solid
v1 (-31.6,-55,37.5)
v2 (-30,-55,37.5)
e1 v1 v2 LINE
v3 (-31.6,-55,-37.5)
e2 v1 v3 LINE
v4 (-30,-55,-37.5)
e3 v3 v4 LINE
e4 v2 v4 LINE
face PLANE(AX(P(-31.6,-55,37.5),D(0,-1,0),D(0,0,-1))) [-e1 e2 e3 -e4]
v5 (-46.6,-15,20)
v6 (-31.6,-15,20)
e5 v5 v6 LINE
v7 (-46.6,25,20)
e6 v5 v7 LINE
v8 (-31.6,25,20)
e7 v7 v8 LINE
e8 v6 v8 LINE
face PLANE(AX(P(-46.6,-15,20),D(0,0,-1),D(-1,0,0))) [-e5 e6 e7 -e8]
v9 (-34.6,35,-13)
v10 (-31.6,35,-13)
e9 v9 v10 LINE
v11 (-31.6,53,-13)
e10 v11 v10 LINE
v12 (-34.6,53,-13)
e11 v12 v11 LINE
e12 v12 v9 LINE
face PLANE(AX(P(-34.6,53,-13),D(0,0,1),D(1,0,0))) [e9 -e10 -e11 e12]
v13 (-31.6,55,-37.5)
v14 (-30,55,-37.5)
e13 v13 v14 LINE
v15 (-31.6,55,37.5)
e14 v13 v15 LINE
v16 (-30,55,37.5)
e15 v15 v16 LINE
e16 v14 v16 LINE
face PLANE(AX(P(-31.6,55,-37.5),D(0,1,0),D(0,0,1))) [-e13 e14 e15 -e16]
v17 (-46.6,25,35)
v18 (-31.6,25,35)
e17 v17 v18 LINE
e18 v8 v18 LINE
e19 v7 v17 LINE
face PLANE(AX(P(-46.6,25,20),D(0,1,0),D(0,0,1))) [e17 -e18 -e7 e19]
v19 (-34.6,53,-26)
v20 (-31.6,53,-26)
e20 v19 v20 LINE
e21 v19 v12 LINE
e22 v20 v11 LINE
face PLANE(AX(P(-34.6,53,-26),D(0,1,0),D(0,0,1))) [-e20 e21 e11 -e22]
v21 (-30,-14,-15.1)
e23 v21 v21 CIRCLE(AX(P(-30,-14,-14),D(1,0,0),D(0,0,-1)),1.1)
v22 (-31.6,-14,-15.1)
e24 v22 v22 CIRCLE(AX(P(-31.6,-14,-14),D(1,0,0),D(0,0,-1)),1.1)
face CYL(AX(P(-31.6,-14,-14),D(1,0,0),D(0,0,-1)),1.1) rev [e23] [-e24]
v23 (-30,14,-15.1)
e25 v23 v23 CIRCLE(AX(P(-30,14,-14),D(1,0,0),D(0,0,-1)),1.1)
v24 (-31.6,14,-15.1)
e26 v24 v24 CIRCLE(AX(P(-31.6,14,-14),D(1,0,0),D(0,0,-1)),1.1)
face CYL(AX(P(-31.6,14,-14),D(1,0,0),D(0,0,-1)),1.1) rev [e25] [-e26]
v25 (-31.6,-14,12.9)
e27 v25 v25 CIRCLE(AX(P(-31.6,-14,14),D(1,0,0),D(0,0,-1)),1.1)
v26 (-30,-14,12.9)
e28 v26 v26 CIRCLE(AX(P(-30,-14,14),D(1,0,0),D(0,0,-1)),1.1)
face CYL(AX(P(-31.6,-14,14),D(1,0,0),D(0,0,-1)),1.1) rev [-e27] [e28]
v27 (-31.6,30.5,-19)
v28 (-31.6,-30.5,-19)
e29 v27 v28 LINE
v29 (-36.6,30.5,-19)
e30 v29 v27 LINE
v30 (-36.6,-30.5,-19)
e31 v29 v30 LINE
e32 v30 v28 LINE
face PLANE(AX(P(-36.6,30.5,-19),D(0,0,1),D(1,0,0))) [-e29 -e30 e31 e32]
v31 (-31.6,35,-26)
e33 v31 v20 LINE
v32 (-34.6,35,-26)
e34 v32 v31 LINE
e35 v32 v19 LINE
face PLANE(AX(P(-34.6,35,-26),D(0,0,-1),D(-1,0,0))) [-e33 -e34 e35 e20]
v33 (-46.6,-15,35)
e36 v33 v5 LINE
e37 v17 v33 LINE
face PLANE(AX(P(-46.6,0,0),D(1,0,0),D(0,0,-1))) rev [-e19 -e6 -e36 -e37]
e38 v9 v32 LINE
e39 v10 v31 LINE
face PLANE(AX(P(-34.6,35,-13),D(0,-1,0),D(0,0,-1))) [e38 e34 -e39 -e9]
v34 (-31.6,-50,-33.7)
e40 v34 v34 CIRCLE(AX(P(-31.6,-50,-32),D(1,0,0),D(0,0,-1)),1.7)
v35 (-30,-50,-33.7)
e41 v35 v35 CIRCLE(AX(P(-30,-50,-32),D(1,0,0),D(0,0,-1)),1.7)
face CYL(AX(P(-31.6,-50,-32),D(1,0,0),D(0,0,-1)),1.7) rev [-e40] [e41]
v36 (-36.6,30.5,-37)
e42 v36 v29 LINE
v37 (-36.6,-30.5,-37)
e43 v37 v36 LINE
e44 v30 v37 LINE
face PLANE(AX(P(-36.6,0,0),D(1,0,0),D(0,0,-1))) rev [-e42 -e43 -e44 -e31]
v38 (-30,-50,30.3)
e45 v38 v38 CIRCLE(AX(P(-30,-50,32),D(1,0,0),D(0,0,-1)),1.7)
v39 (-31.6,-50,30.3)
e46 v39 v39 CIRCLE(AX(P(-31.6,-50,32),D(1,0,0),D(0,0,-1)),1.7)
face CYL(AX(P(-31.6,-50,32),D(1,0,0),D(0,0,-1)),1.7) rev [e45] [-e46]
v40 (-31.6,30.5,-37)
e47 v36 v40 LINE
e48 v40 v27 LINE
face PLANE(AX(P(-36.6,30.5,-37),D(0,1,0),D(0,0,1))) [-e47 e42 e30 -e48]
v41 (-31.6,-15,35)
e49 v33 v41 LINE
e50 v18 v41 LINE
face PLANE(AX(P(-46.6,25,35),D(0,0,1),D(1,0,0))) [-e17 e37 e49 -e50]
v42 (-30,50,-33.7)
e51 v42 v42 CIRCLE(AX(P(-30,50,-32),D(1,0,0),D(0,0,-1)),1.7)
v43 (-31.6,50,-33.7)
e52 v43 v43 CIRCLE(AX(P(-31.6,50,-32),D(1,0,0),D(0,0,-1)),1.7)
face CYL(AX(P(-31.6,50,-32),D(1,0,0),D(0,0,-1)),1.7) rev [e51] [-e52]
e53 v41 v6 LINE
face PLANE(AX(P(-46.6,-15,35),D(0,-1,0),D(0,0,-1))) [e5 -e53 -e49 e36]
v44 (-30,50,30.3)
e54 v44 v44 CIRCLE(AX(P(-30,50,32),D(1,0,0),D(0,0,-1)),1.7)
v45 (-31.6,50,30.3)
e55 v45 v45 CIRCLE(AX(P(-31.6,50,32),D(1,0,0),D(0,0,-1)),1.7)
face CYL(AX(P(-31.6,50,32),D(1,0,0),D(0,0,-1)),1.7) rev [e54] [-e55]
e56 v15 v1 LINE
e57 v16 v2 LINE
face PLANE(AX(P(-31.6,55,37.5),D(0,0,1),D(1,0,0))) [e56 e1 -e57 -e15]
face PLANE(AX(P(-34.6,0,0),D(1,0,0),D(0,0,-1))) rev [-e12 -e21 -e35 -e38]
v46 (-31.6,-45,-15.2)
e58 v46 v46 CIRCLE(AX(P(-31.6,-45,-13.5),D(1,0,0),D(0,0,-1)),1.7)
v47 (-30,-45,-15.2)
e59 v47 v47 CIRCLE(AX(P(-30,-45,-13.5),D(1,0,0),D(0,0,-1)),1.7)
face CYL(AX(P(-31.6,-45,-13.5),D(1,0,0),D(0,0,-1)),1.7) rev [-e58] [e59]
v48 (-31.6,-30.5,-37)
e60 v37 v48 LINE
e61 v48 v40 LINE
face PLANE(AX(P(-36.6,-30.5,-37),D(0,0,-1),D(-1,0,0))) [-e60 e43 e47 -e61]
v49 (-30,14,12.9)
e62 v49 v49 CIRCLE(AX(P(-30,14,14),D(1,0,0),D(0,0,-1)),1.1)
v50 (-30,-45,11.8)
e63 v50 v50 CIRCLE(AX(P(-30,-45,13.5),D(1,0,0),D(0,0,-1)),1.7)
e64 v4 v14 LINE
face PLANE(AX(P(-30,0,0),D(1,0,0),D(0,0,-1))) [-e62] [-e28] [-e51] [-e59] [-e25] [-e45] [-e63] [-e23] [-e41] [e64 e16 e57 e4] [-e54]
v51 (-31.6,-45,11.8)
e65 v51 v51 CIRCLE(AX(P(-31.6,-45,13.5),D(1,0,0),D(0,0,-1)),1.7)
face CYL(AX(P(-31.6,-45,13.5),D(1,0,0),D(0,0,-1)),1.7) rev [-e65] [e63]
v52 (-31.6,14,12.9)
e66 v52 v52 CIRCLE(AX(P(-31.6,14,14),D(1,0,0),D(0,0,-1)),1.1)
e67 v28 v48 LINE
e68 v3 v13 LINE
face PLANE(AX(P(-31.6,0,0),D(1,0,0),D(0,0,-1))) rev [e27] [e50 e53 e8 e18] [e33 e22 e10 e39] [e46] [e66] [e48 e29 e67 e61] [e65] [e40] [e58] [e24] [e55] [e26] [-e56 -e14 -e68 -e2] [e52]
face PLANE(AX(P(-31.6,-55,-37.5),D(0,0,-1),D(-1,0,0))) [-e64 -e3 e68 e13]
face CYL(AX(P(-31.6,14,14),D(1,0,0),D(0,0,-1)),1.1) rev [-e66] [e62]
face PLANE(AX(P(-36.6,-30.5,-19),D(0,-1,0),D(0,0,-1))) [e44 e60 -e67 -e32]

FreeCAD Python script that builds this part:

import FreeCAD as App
import Part
import Sketcher
from FreeCAD import Vector

doc = App.newDocument("Part")
body = doc.addObject("PartDesign::Body", "Body")

# Sketch on YZ plane
sketch1 = body.newObject("Sketcher::SketchObject", "Sketch")
sketch1.AttachmentSupport = (doc.getObject("YZ_Plane"), [""])
sketch1.MapMode = "FlatFace"
sketch1.AttachmentOffset = App.Placement(Vector(0, 0, -30), App.Rotation())
sketch1.addGeometry([
    Part.LineSegment(Vector(55, 37.5, 0), Vector(-55, 37.5, 0)),  # 0
    Part.LineSegment(Vector(-55, 37.5, 0), Vector(-55, -37.5, 0)),  # 1
    Part.LineSegment(Vector(-55, -37.5, 0), Vector(55, -37.5, 0)),  # 2
    Part.LineSegment(Vector(55, -37.5, 0), Vector(55, 37.5, 0)),  # 3
    Part.Circle(Vector(-50, 32, 0), Vector(0, 0, 1), 1.7),  # 4
    Part.Circle(Vector(-45, 13.5, 0), Vector(0, 0, 1), 1.7),  # 5
    Part.Circle(Vector(-14, 14, 0), Vector(0, 0, 1), 1.1),  # 6
    Part.Circle(Vector(-45, -13.5, 0), Vector(0, 0, 1), 1.7),  # 7
    Part.Circle(Vector(-50, -32, 0), Vector(0, 0, 1), 1.7),  # 8
    Part.Circle(Vector(-14, -14, 0), Vector(0, 0, 1), 1.1),  # 9
    Part.Circle(Vector(14, 14, 0), Vector(0, 0, 1), 1.1),  # 10
    Part.Circle(Vector(50, 32, 0), Vector(0, 0, 1), 1.7),  # 11
    Part.Circle(Vector(14, -14, 0), Vector(0, 0, 1), 1.1),  # 12
    Part.Circle(Vector(50, -32, 0), Vector(0, 0, 1), 1.7),  # 13
], False)
sketch1.addConstraint([
    Sketcher.Constraint("Coincident", 0, 2, 1, 1),
    Sketcher.Constraint("Coincident", 1, 2, 2, 1),
    Sketcher.Constraint("Coincident", 2, 2, 3, 1),
    Sketcher.Constraint("Coincident", 3, 2, 0, 1),
    Sketcher.Constraint("Horizontal", 0),
    Sketcher.Constraint("Vertical", 1),
    Sketcher.Constraint("Horizontal", 2),
    Sketcher.Constraint("Vertical", 3),
    Sketcher.Constraint("Equal", 4, 5),
    Sketcher.Constraint("Equal", 5, 7),
    Sketcher.Constraint("Equal", 7, 8),
    Sketcher.Constraint("Equal", 6, 9),
    Sketcher.Constraint("Equal", 9, 10),
    Sketcher.Constraint("Equal", 8, 11),
    Sketcher.Constraint("Equal", 10, 12),
    Sketcher.Constraint("Equal", 11, 13),
    Sketcher.Constraint("Symmetric", 9, 3, 10, 3, -1, 1),
    Sketcher.Constraint("Symmetric", 8, 3, 11, 3, -1, 1),
    Sketcher.Constraint("Symmetric", 6, 3, 12, 3, -1, 1),
    Sketcher.Constraint("Symmetric", 4, 3, 13, 3, -1, 1),
    Sketcher.Constraint("Symmetric", 0, 2, 2, 2, -1, 1),
    Sketcher.Constraint("Symmetric", 6, 3, 10, 3, -2),
    Sketcher.Constraint("Symmetric", 4, 3, 11, 3, -2),
    Sketcher.Constraint("Symmetric", 5, 3, 7, 3, -1),
    Sketcher.Constraint("Diameter", 4, 3.4),
    Sketcher.Constraint("Diameter", 6, 2.2),
    Sketcher.Constraint("DistanceX", 0, 2, 0, 1, 110.0),
    Sketcher.Constraint("DistanceY", 1, 2, 1, 1, 75.0),
    Sketcher.Constraint("DistanceX", 4, 3, -1, 1, 50.0),
    Sketcher.Constraint("DistanceY", -1, 1, 4, 3, 32.0),
    Sketcher.Constraint("DistanceX", 5, 3, -1, 1, 45.0),
    Sketcher.Constraint("DistanceX", 6, 3, -1, 1, 14.0),
    Sketcher.Constraint("DistanceY", -1, 1, 6, 3, 14.0),
    Sketcher.Constraint("DistanceY", 7, 3, 5, 3, 27.0),
])
pad1 = body.newObject("PartDesign::Pad", "Pad")
pad1.Profile = sketch1
pad1.Length = 1.6
pad1.Reversed = True

# Sketch on YZ plane
sketch2 = body.newObject("Sketcher::SketchObject", "Sketch001")
sketch2.AttachmentSupport = (doc.getObject("YZ_Plane"), [""])
sketch2.MapMode = "FlatFace"
sketch2.AttachmentOffset = App.Placement(Vector(0, 0, -31.6), App.Rotation())
sketch2.addGeometry([
    Part.LineSegment(Vector(30.5, -19, 0), Vector(-30.5, -19, 0)),
    Part.LineSegment(Vector(-30.5, -19, 0), Vector(-30.5, -37, 0)),
    Part.LineSegment(Vector(-30.5, -37, 0), Vector(30.5, -37, 0)),
    Part.LineSegment(Vector(30.5, -37, 0), Vector(30.5, -19, 0)),
], False)
sketch2.addConstraint([
    Sketcher.Constraint("Coincident", 0, 2, 1, 1),
    Sketcher.Constraint("Coincident", 1, 2, 2, 1),
    Sketcher.Constraint("Coincident", 2, 2, 3, 1),
    Sketcher.Constraint("Coincident", 3, 2, 0, 1),
    Sketcher.Constraint("Horizontal", 0),
    Sketcher.Constraint("Vertical", 1),
    Sketcher.Constraint("Horizontal", 2),
    Sketcher.Constraint("Vertical", 3),
    Sketcher.Constraint("DistanceX", 0, 2, 0, 1, 61.0),
    Sketcher.Constraint("DistanceY", 1, 2, 1, 1, 18.0),
    Sketcher.Constraint("DistanceY", 0, 2, -1, 1, 19.0),
    Sketcher.Constraint("DistanceX", 0, 2, -1, 1, 30.5),
])
pad2 = body.newObject("PartDesign::Pad", "Pad001")
pad2.Profile = sketch2
pad2.Length = 5
pad2.Reversed = True

# Sketch on YZ plane
sketch3 = body.newObject("Sketcher::SketchObject", "Sketch002")
sketch3.AttachmentSupport = (doc.getObject("YZ_Plane"), [""])
sketch3.MapMode = "FlatFace"
sketch3.AttachmentOffset = App.Placement(Vector(0, 0, -31.6), App.Rotation())
sketch3.addGeometry([
    Part.LineSegment(Vector(53, -13, 0), Vector(35, -13, 0)),
    Part.LineSegment(Vector(35, -13, 0), Vector(35, -26, 0)),
    Part.LineSegment(Vector(35, -26, 0), Vector(53, -26, 0)),
    Part.LineSegment(Vector(53, -26, 0), Vector(53, -13, 0)),
], False)
sketch3.addConstraint([
    Sketcher.Constraint("Coincident", 0, 2, 1, 1),
    Sketcher.Constraint("Coincident", 1, 2, 2, 1),
    Sketcher.Constraint("Coincident", 2, 2, 3, 1),
    Sketcher.Constraint("Coincident", 3, 2, 0, 1),
    Sketcher.Constraint("Horizontal", 0),
    Sketcher.Constraint("Vertical", 1),
    Sketcher.Constraint("Horizontal", 2),
    Sketcher.Constraint("Vertical", 3),
    Sketcher.Constraint("DistanceX", 0, 2, 0, 1, 18.0),
    Sketcher.Constraint("DistanceY", 1, 2, 1, 1, 13.0),
    Sketcher.Constraint("DistanceX", -1, 1, 0, 2, 35.0),
    Sketcher.Constraint("DistanceY", 0, 2, -1, 1, 13.0),
])
pad3 = body.newObject("PartDesign::Pad", "Pad002")
pad3.Profile = sketch3
pad3.Length = 3
pad3.Reversed = True

# Sketch on YZ plane
sketch4 = body.newObject("Sketcher::SketchObject", "Sketch003")
sketch4.AttachmentSupport = (doc.getObject("YZ_Plane"), [""])
sketch4.MapMode = "FlatFace"
sketch4.AttachmentOffset = App.Placement(Vector(0, 0, -31.6), App.Rotation())
sketch4.addGeometry([
    Part.LineSegment(Vector(25, 35, 0), Vector(-15, 35, 0)),
    Part.LineSegment(Vector(-15, 35, 0), Vector(-15, 20, 0)),
    Part.LineSegment(Vector(-15, 20, 0), Vector(25, 20, 0)),
    Part.LineSegment(Vector(25, 20, 0), Vector(25, 35, 0)),
], False)
sketch4.addConstraint([
    Sketcher.Constraint("Coincident", 0, 2, 1, 1),
    Sketcher.Constraint("Coincident", 1, 2, 2, 1),
    Sketcher.Constraint("Coincident", 2, 2, 3, 1),
    Sketcher.Constraint("Coincident", 3, 2, 0, 1),
    Sketcher.Constraint("Horizontal", 0),
    Sketcher.Constraint("Vertical", 1),
    Sketcher.Constraint("Horizontal", 2),
    Sketcher.Constraint("Vertical", 3),
    Sketcher.Constraint("DistanceX", 0, 2, 0, 1, 40.0),
    Sketcher.Constraint("DistanceY", 1, 2, 1, 1, 15.0),
    Sketcher.Constraint("DistanceX", 0, 2, -1, 1, 15.0),
    Sketcher.Constraint("DistanceY", -1, 1, 0, 2, 35.0),
])
pad4 = body.newObject("PartDesign::Pad", "Pad003")
pad4.Profile = sketch4
pad4.Length = 15
pad4.Reversed = True

doc.recompute()
